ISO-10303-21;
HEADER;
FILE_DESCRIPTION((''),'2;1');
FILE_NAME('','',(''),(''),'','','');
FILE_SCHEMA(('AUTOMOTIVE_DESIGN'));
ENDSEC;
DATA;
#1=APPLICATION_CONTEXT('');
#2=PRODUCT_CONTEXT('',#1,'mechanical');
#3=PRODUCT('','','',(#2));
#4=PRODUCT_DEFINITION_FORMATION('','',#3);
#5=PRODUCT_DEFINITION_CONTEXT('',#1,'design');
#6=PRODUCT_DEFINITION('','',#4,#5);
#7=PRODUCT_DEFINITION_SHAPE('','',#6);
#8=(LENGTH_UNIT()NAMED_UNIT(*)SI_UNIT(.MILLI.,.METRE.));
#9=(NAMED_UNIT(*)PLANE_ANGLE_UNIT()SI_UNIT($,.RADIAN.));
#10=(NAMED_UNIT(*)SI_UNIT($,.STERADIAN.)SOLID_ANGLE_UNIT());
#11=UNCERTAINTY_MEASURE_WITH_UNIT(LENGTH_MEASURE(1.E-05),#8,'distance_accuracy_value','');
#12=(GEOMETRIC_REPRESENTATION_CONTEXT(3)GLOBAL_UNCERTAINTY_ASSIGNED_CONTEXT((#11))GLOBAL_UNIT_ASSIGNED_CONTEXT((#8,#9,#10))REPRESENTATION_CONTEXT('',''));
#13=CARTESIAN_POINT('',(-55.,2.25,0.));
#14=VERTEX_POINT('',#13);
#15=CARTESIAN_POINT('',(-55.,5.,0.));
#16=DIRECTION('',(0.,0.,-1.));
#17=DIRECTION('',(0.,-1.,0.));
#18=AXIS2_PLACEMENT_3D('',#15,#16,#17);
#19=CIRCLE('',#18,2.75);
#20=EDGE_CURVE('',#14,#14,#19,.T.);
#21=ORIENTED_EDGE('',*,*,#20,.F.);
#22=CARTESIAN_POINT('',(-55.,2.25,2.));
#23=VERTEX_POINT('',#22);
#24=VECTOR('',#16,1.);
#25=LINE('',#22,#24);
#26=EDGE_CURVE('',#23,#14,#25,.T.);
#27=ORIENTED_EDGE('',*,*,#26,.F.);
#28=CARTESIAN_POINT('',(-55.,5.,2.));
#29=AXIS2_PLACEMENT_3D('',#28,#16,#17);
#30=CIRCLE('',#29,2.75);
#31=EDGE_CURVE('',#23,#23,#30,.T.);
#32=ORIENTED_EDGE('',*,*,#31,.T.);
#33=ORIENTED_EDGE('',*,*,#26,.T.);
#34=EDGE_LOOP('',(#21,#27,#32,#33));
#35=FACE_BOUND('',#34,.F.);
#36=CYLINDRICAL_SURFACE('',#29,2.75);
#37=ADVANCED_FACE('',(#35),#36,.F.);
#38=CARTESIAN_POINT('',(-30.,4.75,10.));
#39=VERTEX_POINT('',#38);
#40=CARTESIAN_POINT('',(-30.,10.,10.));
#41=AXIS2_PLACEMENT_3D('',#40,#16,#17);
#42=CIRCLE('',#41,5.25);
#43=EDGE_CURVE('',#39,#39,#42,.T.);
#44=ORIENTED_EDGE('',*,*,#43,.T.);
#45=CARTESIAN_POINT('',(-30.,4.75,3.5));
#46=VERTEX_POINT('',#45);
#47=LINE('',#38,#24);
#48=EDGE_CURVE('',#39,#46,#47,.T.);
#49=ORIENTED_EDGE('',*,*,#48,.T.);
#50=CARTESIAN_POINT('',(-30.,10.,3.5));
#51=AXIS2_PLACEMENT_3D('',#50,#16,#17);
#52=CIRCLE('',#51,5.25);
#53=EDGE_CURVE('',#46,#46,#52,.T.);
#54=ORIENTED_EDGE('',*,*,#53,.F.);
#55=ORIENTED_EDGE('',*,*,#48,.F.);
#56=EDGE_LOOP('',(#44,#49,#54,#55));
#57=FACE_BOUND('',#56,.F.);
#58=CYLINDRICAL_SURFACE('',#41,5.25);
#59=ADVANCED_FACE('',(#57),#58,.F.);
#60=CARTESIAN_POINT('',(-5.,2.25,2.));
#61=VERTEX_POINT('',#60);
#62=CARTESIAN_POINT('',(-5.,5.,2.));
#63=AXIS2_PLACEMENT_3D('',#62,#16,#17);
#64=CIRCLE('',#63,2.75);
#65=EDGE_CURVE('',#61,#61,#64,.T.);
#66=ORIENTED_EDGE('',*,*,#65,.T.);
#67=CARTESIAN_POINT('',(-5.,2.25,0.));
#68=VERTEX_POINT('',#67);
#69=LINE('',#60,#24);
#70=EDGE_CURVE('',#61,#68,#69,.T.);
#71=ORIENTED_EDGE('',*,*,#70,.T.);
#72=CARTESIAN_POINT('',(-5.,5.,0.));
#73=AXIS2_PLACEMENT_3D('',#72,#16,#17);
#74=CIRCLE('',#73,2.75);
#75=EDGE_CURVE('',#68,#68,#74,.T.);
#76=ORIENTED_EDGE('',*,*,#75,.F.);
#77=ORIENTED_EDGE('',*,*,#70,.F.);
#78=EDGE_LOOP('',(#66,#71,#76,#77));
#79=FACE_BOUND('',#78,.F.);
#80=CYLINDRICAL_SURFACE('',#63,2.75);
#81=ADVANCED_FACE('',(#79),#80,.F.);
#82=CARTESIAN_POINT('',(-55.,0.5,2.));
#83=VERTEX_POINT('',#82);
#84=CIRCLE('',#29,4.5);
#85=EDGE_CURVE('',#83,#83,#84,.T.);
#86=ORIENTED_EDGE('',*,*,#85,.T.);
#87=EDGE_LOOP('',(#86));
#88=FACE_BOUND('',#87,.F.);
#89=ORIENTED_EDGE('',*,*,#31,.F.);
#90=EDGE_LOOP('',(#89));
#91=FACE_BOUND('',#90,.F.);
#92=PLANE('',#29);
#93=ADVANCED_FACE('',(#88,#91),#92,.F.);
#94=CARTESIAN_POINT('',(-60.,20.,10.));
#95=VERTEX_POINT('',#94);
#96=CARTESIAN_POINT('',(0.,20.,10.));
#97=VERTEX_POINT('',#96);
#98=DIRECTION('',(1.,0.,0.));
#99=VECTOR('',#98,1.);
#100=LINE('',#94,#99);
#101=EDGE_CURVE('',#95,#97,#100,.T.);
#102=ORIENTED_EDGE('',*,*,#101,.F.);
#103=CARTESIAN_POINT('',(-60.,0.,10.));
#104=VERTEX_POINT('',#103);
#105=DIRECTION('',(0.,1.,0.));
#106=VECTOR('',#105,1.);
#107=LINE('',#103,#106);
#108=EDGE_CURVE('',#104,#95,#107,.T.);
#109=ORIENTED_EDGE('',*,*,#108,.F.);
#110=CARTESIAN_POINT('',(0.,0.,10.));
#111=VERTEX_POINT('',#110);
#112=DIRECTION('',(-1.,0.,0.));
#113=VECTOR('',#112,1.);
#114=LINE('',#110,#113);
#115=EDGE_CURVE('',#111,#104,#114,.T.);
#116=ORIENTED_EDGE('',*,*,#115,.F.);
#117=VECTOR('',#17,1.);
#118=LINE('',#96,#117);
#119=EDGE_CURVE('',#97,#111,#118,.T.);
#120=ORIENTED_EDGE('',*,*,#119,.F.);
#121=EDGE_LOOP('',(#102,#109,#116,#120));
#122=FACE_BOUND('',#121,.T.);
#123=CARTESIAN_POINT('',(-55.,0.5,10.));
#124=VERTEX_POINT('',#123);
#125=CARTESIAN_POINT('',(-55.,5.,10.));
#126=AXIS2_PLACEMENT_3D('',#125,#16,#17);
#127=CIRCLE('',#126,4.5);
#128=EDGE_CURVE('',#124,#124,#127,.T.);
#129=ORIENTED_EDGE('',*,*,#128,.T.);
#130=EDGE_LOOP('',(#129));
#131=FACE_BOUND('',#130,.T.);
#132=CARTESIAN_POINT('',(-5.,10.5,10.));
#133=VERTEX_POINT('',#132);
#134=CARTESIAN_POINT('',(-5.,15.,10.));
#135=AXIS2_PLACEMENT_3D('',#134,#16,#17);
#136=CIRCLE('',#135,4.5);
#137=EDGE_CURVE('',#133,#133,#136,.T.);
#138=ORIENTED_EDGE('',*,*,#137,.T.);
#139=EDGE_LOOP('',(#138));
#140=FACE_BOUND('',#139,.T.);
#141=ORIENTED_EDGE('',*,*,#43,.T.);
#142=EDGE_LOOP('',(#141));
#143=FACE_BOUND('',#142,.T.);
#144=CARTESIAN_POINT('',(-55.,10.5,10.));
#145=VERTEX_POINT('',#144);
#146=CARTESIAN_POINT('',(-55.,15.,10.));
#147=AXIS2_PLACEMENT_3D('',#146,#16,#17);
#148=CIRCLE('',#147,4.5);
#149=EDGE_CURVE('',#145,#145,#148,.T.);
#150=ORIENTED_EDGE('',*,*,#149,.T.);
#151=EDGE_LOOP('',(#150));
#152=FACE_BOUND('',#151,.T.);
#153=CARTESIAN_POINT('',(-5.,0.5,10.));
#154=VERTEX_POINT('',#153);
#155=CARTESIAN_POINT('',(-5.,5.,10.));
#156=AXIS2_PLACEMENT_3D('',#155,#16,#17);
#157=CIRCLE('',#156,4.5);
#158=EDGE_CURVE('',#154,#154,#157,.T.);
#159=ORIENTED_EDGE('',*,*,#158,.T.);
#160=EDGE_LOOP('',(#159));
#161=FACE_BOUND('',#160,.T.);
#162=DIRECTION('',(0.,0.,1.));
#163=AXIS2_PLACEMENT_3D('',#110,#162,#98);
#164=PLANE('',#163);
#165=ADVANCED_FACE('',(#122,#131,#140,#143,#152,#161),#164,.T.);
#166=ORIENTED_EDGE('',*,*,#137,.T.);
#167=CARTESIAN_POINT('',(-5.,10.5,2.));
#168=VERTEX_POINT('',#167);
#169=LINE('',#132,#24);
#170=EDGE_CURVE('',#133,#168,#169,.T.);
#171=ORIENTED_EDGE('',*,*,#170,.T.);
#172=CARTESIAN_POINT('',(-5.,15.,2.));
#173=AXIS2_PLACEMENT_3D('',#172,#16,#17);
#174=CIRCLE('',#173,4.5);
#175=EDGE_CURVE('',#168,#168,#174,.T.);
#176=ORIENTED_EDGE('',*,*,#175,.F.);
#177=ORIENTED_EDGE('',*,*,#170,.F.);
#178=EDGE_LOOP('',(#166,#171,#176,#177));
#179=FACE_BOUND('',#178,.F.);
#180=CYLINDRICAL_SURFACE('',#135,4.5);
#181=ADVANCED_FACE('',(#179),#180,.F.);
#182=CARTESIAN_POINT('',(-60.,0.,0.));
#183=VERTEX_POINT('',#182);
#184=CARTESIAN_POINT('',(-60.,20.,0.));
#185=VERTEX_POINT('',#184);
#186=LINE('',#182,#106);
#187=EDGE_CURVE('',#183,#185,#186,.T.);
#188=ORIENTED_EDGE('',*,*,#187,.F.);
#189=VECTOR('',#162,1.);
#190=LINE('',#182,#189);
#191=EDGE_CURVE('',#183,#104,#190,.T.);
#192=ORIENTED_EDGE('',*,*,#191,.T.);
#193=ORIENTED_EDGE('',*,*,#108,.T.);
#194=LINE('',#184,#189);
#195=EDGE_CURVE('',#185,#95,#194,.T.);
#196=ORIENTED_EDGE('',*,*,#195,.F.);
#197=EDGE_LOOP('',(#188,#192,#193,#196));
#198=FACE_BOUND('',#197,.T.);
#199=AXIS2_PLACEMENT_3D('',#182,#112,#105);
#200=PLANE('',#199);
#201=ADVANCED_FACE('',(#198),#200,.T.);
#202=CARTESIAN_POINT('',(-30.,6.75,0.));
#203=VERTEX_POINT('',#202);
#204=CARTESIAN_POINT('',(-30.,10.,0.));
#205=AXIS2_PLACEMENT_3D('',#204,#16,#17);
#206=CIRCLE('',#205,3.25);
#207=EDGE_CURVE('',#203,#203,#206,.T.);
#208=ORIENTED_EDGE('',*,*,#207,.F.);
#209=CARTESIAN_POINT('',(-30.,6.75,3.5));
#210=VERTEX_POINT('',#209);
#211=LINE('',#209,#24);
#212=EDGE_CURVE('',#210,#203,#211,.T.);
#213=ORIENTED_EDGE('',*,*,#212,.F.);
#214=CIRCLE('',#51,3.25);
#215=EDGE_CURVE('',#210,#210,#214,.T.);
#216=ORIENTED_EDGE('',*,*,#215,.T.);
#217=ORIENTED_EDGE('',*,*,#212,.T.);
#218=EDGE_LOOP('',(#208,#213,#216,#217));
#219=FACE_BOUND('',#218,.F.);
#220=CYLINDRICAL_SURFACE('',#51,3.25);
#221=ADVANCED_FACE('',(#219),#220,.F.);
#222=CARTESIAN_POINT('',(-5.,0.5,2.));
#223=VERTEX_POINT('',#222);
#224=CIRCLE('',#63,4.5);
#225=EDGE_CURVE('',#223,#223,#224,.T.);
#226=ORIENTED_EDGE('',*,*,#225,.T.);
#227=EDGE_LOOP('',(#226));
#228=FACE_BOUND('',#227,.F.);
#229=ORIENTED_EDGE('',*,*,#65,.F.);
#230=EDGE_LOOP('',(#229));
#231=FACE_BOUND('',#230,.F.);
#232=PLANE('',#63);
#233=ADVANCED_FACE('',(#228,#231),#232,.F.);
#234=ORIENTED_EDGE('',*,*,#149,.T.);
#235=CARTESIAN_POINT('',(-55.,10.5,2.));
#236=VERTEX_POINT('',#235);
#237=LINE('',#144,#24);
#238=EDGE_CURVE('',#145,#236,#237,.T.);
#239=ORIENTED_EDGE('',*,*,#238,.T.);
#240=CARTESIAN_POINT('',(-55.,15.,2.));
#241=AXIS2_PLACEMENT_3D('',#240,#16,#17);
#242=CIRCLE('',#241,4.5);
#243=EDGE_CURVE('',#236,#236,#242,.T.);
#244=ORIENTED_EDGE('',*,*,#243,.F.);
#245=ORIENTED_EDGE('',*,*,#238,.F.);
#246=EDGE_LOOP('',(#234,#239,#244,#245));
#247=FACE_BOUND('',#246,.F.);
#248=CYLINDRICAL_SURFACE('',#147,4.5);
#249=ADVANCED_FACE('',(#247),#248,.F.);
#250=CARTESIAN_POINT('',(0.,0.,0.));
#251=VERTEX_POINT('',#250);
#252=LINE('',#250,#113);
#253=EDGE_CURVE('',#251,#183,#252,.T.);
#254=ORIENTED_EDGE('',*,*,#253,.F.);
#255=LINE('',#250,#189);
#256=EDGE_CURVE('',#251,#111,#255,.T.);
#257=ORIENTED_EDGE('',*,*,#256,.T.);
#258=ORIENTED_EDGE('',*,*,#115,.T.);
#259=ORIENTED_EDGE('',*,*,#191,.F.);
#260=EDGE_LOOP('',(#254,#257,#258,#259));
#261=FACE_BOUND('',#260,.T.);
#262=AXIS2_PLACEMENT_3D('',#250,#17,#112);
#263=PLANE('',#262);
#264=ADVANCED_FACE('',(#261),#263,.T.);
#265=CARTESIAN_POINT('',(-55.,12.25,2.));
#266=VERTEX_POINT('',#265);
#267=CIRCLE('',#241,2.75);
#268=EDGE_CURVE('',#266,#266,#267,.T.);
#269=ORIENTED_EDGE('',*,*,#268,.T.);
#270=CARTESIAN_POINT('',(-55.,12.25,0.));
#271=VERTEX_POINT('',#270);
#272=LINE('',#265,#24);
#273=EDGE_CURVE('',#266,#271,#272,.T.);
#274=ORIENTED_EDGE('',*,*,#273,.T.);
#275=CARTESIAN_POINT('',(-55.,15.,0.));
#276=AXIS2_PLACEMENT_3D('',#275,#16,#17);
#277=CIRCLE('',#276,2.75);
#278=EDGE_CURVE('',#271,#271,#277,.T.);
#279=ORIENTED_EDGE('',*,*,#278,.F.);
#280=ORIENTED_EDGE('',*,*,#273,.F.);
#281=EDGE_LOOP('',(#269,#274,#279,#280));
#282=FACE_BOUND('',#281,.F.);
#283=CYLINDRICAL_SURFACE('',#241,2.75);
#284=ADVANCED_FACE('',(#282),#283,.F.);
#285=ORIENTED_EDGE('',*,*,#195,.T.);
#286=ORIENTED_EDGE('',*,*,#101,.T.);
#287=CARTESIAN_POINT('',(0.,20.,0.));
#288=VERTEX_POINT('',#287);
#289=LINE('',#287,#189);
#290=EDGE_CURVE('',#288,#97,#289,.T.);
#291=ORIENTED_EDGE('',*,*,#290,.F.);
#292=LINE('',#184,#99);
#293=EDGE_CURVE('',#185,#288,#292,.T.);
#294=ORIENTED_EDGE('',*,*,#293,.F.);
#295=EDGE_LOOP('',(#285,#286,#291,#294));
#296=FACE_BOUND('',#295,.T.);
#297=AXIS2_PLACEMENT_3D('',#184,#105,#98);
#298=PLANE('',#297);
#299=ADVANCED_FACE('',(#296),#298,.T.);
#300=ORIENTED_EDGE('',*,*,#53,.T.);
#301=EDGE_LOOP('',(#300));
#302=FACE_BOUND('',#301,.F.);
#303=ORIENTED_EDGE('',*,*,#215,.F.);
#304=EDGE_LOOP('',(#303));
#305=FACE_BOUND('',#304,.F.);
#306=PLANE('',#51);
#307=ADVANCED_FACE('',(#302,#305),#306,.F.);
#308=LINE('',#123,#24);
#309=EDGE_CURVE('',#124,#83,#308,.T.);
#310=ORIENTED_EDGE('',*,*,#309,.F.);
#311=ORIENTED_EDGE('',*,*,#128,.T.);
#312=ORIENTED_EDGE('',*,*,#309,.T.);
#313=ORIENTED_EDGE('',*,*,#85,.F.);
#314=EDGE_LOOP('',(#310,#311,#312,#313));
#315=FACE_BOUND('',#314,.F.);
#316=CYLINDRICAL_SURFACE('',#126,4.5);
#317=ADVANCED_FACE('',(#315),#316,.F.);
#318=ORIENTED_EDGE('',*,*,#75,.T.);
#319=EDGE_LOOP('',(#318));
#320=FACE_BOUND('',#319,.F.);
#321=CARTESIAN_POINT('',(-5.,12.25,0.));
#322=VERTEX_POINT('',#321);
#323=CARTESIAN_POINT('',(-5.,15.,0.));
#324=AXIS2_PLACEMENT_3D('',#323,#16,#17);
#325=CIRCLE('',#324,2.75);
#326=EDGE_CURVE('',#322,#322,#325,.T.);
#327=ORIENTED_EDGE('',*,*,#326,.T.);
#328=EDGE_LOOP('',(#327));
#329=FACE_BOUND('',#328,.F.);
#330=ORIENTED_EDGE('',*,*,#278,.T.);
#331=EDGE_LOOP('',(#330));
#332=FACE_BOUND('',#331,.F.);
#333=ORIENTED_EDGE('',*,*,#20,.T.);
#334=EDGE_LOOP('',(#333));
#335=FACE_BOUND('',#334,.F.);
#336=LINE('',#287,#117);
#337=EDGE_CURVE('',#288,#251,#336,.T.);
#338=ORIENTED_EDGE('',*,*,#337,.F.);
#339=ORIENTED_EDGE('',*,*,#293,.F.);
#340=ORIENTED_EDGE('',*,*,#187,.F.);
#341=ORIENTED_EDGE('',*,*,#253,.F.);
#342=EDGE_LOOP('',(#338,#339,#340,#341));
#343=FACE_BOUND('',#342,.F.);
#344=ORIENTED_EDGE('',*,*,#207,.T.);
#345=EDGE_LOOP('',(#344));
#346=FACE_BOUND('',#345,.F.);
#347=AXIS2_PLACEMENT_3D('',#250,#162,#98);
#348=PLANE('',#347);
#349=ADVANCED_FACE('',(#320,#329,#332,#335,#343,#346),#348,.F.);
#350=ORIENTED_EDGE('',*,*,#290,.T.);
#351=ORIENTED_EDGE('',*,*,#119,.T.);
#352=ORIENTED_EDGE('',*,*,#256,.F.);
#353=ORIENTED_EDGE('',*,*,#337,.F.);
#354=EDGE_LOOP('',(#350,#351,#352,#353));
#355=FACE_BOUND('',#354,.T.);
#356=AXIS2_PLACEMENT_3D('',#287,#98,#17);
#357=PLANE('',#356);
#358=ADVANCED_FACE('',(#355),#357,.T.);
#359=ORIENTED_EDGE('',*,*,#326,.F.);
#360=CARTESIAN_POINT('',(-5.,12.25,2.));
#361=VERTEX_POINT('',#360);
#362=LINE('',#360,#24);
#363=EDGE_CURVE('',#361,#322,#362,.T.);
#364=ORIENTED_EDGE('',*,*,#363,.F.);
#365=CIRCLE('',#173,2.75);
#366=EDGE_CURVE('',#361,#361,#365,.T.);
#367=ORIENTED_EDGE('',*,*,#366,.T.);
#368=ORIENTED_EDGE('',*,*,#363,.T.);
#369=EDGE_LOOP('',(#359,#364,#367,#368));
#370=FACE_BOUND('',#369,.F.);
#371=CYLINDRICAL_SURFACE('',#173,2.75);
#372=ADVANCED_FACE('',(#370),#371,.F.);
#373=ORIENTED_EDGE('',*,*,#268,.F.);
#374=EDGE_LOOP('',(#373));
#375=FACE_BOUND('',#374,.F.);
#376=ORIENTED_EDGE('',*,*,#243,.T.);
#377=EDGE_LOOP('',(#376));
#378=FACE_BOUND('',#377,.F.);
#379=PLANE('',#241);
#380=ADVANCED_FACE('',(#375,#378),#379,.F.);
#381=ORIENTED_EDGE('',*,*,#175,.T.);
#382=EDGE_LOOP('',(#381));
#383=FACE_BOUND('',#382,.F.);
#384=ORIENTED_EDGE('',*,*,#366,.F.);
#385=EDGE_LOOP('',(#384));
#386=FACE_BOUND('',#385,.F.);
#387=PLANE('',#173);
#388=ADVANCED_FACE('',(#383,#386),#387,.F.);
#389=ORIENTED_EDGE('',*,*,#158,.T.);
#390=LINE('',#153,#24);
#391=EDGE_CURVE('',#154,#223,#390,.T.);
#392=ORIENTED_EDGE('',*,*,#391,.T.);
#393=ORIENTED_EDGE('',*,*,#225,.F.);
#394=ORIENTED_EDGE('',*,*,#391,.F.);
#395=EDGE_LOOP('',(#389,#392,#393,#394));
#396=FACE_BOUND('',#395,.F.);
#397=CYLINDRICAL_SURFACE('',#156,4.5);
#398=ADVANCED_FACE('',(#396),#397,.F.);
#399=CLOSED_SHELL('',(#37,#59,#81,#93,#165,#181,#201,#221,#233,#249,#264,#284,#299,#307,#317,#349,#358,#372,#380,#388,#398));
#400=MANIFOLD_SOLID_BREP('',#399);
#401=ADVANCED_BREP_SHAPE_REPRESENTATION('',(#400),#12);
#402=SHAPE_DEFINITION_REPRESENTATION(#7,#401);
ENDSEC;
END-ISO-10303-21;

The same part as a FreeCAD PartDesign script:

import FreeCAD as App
import Part
import Sketcher
Q = App.Units.Quantity


def add_polygon(sketch, points):
    """Adds a closed chain of lines whose ends are joined by coincident constraints."""
    first, n = sketch.GeometryCount, len(points)
    for a, b in zip(points, points[1:] + points[:1]):
        sketch.addGeometry(Part.LineSegment(App.Vector(*a, 0), App.Vector(*b, 0)), False)
    for i in range(n):
        sketch.addConstraint(Sketcher.Constraint("Coincident", first + i, 2, first + (i + 1) % n, 1))

doc = App.newDocument("Part")
params = doc.addObject("Spreadsheet::Sheet", "Params")
for row, (alias, value) in enumerate([
    ("sketch1_width", "60 mm"),
    ("sketch1_height", "20 mm"),
    ("pad1_length", "10 mm"),
    ("sketch2_diameter", "6.5 mm"),
    ("hole_diameter", "6.5 mm"),
    ("hole_depth", "10 mm"),
    ("hole_cbore_diameter", "10.5 mm"),
    ("hole_cbore_depth", "6.5 mm"),
    ("sketch3_diameter", "5.5 mm"),
    ("hole2_diameter", "5.5 mm"),
    ("hole2_depth", "10 mm"),
    ("hole2_cbore_diameter", "9 mm"),
    ("hole2_cbore_depth", "8 mm"),
    ("sketch4_diameter", "5.5 mm"),
    ("hole3_diameter", "5.5 mm"),
    ("hole3_depth", "10 mm"),
    ("hole3_cbore_diameter", "9 mm"),
    ("hole3_cbore_depth", "8 mm"),
    ("sketch5_diameter", "5.5 mm"),
    ("hole4_diameter", "5.5 mm"),
    ("hole4_depth", "10 mm"),
    ("hole4_cbore_diameter", "9 mm"),
    ("hole4_cbore_depth", "8 mm"),
    ("sketch6_diameter", "5.5 mm"),
    ("hole5_diameter", "5.5 mm"),
    ("hole5_depth", "10 mm"),
    ("hole5_cbore_diameter", "9 mm"),
    ("hole5_cbore_depth", "8 mm"),
], start=1):
    params.set(f"A{row}", alias)
    params.set(f"B{row}", "=" + value)
    params.setAlias(f"B{row}", alias)

body = doc.addObject("PartDesign::Body", "Body")

sketch1 = body.newObject("Sketcher::SketchObject", "Sketch")
sketch1.AttachmentSupport = (doc.getObject("XY_Plane"), [""])
sketch1.MapMode = "FlatFace"
add_polygon(sketch1, [(-60, 0), (0, 0), (0, 20), (-60, 20)])
sketch1.addConstraint(Sketcher.Constraint("Horizontal", 0))
sketch1.addConstraint(Sketcher.Constraint("Vertical", 1))
sketch1.addConstraint(Sketcher.Constraint("Horizontal", 2))
sketch1.addConstraint(Sketcher.Constraint("Vertical", 3))
sketch1.addConstraint(Sketcher.Constraint("Coincident", 0, 2, -1, 1))
sketch1.addConstraint(Sketcher.Constraint("DistanceX", 0, 1, 0, 2, Q("60 mm")))
sketch1.addConstraint(Sketcher.Constraint("DistanceY", 1, 1, 1, 2, Q("20 mm")))
sketch1.setExpression("Constraints[9]", "Params.sketch1_width")
sketch1.setExpression("Constraints[10]", "Params.sketch1_height")
pad1 = body.newObject("PartDesign::Pad", "Pad")
pad1.Profile = sketch1
pad1.setExpression("Length", "Params.pad1_length")

sketch2 = body.newObject("Sketcher::SketchObject", "Sketch001")
sketch2.AttachmentSupport = (doc.getObject("XY_Plane"), [""])
sketch2.MapMode = "FlatFace"
sketch2.AttachmentOffset = App.Placement(App.Vector(0, 0, 10), App.Rotation())
sketch2.addGeometry(Part.Circle(App.Vector(-30, 10, 0), App.Vector(0, 0, 1), 3.2), False)
sketch2.addConstraint(Sketcher.Constraint("Diameter", 0, Q("6.5 mm")))
sketch2.addConstraint(Sketcher.Constraint("DistanceX", 0, 3, -1, 1, Q("30 mm")))
sketch2.addConstraint(Sketcher.Constraint("DistanceY", -1, 1, 0, 3, Q("10 mm")))
sketch2.setExpression("Constraints[0]", "Params.sketch2_diameter")
doc.recompute()
hole = body.newObject("PartDesign::Hole", "Hole")
hole.Profile = sketch2
hole.ThreadType = "None"
hole.setExpression("Diameter", "Params.hole_diameter")
hole.DepthType = "Dimension"
hole.setExpression("Depth", "Params.hole_depth")
hole.DrillPoint = "Angled"
hole.DrillPointAngle = 118
hole.HoleCutType = "Counterbore"
hole.setExpression("HoleCutDiameter", "Params.hole_cbore_diameter")
hole.setExpression("HoleCutDepth", "Params.hole_cbore_depth")

sketch3 = body.newObject("Sketcher::SketchObject", "Sketch002")
sketch3.AttachmentSupport = (doc.getObject("XY_Plane"), [""])
sketch3.MapMode = "FlatFace"
sketch3.AttachmentOffset = App.Placement(App.Vector(0, 0, 10), App.Rotation())
sketch3.addGeometry(Part.Circle(App.Vector(-55, 15, 0), App.Vector(0, 0, 1), 2.8), False)
sketch3.addConstraint(Sketcher.Constraint("Diameter", 0, Q("5.5 mm")))
sketch3.addConstraint(Sketcher.Constraint("DistanceX", 0, 3, -1, 1, Q("55 mm")))
sketch3.addConstraint(Sketcher.Constraint("DistanceY", -1, 1, 0, 3, Q("15 mm")))
sketch3.setExpression("Constraints[0]", "Params.sketch3_diameter")
doc.recompute()
hole2 = body.newObject("PartDesign::Hole", "Hole001")
hole2.Profile = sketch3
hole2.ThreadType = "None"
hole2.setExpression("Diameter", "Params.hole2_diameter")
hole2.DepthType = "Dimension"
hole2.setExpression("Depth", "Params.hole2_depth")
hole2.DrillPoint = "Angled"
hole2.DrillPointAngle = 118
hole2.HoleCutType = "Counterbore"
hole2.setExpression("HoleCutDiameter", "Params.hole2_cbore_diameter")
hole2.setExpression("HoleCutDepth", "Params.hole2_cbore_depth")

sketch4 = body.newObject("Sketcher::SketchObject", "Sketch003")
sketch4.AttachmentSupport = (doc.getObject("XY_Plane"), [""])
sketch4.MapMode = "FlatFace"
sketch4.AttachmentOffset = App.Placement(App.Vector(0, 0, 10), App.Rotation())
sketch4.addGeometry(Part.Circle(App.Vector(-5, 15, 0), App.Vector(0, 0, 1), 2.8), False)
sketch4.addConstraint(Sketcher.Constraint("Diameter", 0, Q("5.5 mm")))
sketch4.addConstraint(Sketcher.Constraint("DistanceX", 0, 3, -1, 1, Q("5 mm")))
sketch4.addConstraint(Sketcher.Constraint("DistanceY", -1, 1, 0, 3, Q("15 mm")))
sketch4.setExpression("Constraints[0]", "Params.sketch4_diameter")
doc.recompute()
hole3 = body.newObject("PartDesign::Hole", "Hole002")
hole3.Profile = sketch4
hole3.ThreadType = "None"
hole3.setExpression("Diameter", "Params.hole3_diameter")
hole3.DepthType = "Dimension"
hole3.setExpression("Depth", "Params.hole3_depth")
hole3.DrillPoint = "Angled"
hole3.DrillPointAngle = 118
hole3.HoleCutType = "Counterbore"
hole3.setExpression("HoleCutDiameter", "Params.hole3_cbore_diameter")
hole3.setExpression("HoleCutDepth", "Params.hole3_cbore_depth")

sketch5 = body.newObject("Sketcher::SketchObject", "Sketch004")
sketch5.AttachmentSupport = (doc.getObject("XY_Plane"), [""])
sketch5.MapMode = "FlatFace"
sketch5.AttachmentOffset = App.Placement(App.Vector(0, 0, 10), App.Rotation())
sketch5.addGeometry(Part.Circle(App.Vector(-5, 5, 0), App.Vector(0, 0, 1), 2.8), False)
sketch5.addConstraint(Sketcher.Constraint("Diameter", 0, Q("5.5 mm")))
sketch5.addConstraint(Sketcher.Constraint("DistanceX", 0, 3, -1, 1, Q("5 mm")))
sketch5.addConstraint(Sketcher.Constraint("DistanceY", -1, 1, 0, 3, Q("5 mm")))
sketch5.setExpression("Constraints[0]", "Params.sketch5_diameter")
doc.recompute()
hole4 = body.newObject("PartDesign::Hole", "Hole003")
hole4.Profile = sketch5
hole4.ThreadType = "None"
hole4.setExpression("Diameter", "Params.hole4_diameter")
hole4.DepthType = "Dimension"
hole4.setExpression("Depth", "Params.hole4_depth")
hole4.DrillPoint = "Angled"
hole4.DrillPointAngle = 118
hole4.HoleCutType = "Counterbore"
hole4.setExpression("HoleCutDiameter", "Params.hole4_cbore_diameter")
hole4.setExpression("HoleCutDepth", "Params.hole4_cbore_depth")

sketch6 = body.newObject("Sketcher::SketchObject", "Sketch005")
sketch6.AttachmentSupport = (doc.getObject("XY_Plane"), [""])
sketch6.MapMode = "FlatFace"
sketch6.AttachmentOffset = App.Placement(App.Vector(0, 0, 10), App.Rotation())
sketch6.addGeometry(Part.Circle(App.Vector(-55, 5, 0), App.Vector(0, 0, 1), 2.8), False)
sketch6.addConstraint(Sketcher.Constraint("Diameter", 0, Q("5.5 mm")))
sketch6.addConstraint(Sketcher.Constraint("DistanceX", 0, 3, -1, 1, Q("55 mm")))
sketch6.addConstraint(Sketcher.Constraint("DistanceY", -1, 1, 0, 3, Q("5 mm")))
sketch6.setExpression("Constraints[0]", "Params.sketch6_diameter")
doc.recompute()
hole5 = body.newObject("PartDesign::Hole", "Hole004")
hole5.Profile = sketch6
hole5.ThreadType = "None"
hole5.setExpression("Diameter", "Params.hole5_diameter")
hole5.DepthType = "Dimension"
hole5.setExpression("Depth", "Params.hole5_depth")
hole5.DrillPoint = "Angled"
hole5.DrillPointAngle = 118
hole5.HoleCutType = "Counterbore"
hole5.setExpression("HoleCutDiameter", "Params.hole5_cbore_diameter")
hole5.setExpression("HoleCutDepth", "Params.hole5_cbore_depth")

doc.recompute()
